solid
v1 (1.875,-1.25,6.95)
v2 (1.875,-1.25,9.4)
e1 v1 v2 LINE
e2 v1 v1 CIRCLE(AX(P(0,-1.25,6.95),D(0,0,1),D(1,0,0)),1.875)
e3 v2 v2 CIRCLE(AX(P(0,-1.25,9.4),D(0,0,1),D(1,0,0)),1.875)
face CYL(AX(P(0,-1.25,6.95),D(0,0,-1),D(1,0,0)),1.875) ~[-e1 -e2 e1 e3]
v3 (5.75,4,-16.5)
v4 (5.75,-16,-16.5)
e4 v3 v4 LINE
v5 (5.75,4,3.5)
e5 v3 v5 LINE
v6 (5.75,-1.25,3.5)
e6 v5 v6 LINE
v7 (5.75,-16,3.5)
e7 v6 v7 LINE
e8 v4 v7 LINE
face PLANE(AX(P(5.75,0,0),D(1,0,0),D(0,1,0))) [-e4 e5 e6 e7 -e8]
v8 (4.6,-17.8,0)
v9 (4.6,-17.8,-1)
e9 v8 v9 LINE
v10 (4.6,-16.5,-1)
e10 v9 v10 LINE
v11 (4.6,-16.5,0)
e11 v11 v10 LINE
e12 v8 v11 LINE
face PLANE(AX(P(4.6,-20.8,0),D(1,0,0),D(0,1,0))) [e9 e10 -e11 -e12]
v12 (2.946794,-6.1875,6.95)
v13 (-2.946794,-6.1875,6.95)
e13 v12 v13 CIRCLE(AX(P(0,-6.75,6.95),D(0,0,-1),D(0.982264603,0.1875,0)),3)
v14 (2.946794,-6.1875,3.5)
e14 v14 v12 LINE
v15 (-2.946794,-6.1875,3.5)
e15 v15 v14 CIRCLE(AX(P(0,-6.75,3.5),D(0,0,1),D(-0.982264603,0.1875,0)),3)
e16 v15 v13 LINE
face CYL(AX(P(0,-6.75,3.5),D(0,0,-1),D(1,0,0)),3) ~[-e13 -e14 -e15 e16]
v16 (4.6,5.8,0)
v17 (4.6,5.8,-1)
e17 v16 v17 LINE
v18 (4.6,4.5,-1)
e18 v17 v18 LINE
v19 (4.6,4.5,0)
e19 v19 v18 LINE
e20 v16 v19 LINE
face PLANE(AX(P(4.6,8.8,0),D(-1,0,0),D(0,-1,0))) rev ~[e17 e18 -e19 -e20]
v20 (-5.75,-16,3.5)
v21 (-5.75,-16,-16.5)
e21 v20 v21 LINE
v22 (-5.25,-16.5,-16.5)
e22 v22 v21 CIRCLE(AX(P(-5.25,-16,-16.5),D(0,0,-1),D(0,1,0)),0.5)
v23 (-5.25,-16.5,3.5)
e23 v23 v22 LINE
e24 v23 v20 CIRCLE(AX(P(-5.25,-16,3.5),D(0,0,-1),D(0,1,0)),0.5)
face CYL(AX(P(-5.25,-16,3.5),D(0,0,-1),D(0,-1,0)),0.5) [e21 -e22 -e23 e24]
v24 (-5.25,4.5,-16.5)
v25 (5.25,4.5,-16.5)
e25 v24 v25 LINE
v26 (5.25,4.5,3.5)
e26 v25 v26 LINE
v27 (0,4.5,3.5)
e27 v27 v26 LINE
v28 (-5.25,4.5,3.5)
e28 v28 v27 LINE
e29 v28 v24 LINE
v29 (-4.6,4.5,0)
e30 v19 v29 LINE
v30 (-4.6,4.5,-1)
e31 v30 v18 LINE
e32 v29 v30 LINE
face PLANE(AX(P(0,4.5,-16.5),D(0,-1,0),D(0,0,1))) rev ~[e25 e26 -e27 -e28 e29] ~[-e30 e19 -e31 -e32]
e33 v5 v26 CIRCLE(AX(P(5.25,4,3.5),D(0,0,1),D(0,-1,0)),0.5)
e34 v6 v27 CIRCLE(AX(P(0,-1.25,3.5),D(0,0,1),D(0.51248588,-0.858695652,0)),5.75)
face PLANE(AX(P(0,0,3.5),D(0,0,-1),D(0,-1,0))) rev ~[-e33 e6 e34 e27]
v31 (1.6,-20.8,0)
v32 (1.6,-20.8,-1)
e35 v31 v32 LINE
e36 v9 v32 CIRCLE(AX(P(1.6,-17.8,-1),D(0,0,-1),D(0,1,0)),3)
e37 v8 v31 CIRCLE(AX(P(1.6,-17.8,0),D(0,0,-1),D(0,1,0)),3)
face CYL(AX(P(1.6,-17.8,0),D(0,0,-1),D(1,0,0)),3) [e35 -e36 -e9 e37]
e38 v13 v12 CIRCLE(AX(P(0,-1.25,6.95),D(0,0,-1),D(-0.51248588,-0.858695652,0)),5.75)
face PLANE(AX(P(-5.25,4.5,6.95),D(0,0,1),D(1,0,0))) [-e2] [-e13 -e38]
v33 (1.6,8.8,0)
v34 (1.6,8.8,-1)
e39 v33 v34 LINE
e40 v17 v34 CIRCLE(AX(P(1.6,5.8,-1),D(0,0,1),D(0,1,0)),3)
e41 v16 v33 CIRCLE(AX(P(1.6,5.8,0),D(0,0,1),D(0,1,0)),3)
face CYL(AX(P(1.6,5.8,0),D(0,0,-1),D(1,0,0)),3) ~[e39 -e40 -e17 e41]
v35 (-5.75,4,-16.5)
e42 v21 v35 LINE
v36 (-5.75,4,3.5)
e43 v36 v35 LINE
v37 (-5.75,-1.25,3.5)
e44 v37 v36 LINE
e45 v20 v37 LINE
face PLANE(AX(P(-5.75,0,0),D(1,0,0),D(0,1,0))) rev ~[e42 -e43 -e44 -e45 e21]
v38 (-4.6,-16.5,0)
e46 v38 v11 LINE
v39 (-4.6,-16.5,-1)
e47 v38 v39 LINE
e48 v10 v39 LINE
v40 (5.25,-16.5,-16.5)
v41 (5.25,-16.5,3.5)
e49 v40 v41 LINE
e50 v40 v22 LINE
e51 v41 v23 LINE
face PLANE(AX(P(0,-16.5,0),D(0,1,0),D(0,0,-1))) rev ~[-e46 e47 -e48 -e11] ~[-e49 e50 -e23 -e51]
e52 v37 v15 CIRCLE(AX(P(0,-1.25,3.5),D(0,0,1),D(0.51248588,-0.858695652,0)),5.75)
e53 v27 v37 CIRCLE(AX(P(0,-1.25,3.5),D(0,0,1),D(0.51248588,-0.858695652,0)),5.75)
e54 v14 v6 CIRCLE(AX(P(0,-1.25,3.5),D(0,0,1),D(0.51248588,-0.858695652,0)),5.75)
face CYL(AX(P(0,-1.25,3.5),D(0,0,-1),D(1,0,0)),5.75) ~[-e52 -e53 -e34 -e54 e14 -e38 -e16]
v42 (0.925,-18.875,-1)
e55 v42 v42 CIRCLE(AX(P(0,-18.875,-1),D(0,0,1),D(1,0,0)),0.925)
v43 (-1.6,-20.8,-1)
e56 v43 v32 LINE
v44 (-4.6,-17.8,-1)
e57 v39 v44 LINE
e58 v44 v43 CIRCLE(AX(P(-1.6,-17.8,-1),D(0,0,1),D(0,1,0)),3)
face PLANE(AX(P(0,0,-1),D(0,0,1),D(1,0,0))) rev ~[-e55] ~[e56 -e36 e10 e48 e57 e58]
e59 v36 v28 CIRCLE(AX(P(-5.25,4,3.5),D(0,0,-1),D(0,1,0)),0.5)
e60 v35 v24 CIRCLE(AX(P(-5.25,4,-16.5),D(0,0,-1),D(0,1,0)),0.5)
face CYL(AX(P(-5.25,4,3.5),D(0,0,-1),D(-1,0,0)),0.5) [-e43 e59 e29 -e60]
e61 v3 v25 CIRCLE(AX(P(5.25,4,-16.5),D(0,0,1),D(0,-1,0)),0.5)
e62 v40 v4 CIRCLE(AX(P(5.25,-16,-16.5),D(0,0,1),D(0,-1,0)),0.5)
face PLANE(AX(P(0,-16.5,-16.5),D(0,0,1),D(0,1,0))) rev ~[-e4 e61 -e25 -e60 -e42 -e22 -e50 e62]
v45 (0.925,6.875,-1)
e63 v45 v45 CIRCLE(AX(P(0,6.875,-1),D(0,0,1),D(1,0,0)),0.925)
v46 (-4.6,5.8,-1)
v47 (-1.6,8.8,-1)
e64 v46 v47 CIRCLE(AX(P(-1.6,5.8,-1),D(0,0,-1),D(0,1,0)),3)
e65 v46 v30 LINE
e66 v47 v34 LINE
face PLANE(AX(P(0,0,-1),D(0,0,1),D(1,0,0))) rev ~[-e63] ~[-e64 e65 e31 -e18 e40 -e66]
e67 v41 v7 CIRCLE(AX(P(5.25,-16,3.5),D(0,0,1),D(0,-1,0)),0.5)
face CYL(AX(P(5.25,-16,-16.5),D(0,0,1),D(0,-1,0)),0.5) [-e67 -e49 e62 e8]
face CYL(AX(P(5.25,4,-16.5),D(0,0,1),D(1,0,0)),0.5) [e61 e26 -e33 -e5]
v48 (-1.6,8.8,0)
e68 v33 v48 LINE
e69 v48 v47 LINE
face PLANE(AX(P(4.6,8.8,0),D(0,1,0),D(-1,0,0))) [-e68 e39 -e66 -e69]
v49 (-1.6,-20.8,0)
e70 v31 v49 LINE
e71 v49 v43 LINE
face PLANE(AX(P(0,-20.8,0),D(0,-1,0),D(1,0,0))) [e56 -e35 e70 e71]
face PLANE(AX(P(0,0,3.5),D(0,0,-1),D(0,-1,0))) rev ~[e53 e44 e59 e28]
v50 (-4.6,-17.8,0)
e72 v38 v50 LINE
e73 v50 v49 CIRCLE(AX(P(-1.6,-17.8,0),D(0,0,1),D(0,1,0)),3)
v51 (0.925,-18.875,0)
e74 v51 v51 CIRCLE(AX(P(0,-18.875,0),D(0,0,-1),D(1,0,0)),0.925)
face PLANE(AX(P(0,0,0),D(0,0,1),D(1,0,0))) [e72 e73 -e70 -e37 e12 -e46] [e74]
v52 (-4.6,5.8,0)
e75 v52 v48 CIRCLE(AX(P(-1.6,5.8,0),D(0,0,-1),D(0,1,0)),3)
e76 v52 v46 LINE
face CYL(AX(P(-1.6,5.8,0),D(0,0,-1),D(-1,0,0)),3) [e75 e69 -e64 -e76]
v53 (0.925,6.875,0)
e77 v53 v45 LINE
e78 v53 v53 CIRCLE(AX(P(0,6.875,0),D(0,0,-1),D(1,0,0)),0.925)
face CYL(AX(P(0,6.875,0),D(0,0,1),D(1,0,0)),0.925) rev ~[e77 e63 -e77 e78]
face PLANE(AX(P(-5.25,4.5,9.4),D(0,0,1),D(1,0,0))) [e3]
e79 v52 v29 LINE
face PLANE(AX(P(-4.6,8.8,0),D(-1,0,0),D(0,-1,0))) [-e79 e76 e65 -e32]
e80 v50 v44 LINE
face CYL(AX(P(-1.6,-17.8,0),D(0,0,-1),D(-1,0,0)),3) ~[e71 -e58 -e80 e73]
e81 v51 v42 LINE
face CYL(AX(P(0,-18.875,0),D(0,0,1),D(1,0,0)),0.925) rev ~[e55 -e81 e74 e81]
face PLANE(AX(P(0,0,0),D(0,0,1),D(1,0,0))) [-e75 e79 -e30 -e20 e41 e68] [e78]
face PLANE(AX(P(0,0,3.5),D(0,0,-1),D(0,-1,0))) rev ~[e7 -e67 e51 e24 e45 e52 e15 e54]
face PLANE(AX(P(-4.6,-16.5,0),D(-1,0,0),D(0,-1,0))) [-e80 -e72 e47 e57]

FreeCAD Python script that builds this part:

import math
import FreeCAD as App
import Part
import Sketcher


def edges_at(feature, points):
    """Names of the edges that pass closest to the given points."""
    edges = feature.Shape.Edges
    near = lambda p: min(range(len(edges)), key=lambda i: edges[i].distToShape(Part.Vertex(*p))[0])
    return sorted({f"Edge{near(p) + 1}" for p in points})

doc = App.newDocument("Part")
params = doc.addObject("Spreadsheet::Sheet", "Params")
for row, (alias, value) in enumerate([
    ("sketch1_width", "21 mm"),
    ("sketch1_height", "20 mm"),
    ("pad1_length", "11.5 mm"),
    ("sketch2_diameter", "1.85 mm"),
    ("sketch2_width", "9.2 mm"),
    ("sketch2_height", "4.3 mm"),
    ("pad2_length", "1 mm"),
    ("fillet_radius", "3 mm"),
    ("fillet2_radius", "0.5 mm"),
    ("sketch3_radius", "3 mm"),
    ("sketch3_radius2", "5.75 mm"),
    ("pad3_length", "3.45 mm"),
    ("sketch4_diameter", "3.75 mm"),
    ("pad4_length", "2.45 mm"),
], start=1):
    params.set(f"A{row}", alias)
    params.set(f"B{row}", "=" + value)
    params.setAlias(f"B{row}", alias)

body = doc.addObject("PartDesign::Body", "Body")

# Sketch on YZ plane
sketch1 = body.newObject("Sketcher::SketchObject", "Sketch")
sketch1.AttachmentSupport = (doc.getObject("YZ_Plane"), [""])
sketch1.MapMode = "FlatFace"
sketch1.addGeometry([
    Part.LineSegment(App.Vector(-16.5, -16.5, 0), App.Vector(4.5, -16.5, 0)),
    Part.LineSegment(App.Vector(4.5, -16.5, 0), App.Vector(4.5, 3.5, 0)),
    Part.LineSegment(App.Vector(4.5, 3.5, 0), App.Vector(-16.5, 3.5, 0)),
    Part.LineSegment(App.Vector(-16.5, 3.5, 0), App.Vector(-16.5, -16.5, 0)),
], False)
sketch1.addConstraint([
    Sketcher.Constraint("Coincident", 0, 2, 1, 1),
    Sketcher.Constraint("Coincident", 1, 2, 2, 1),
    Sketcher.Constraint("Coincident", 2, 2, 3, 1),
    Sketcher.Constraint("Coincident", 3, 2, 0, 1),
    Sketcher.Constraint("Horizontal", 0),
    Sketcher.Constraint("Vertical", 1),
    Sketcher.Constraint("Horizontal", 2),
    Sketcher.Constraint("Vertical", 3),
    Sketcher.Constraint("DistanceX", 0, 1, 0, 2, 21.0),
    Sketcher.Constraint("DistanceY", 1, 1, 1, 2, 20.0),
    Sketcher.Constraint("DistanceX", -1, 1, 0, 2, 4.5),
    Sketcher.Constraint("DistanceY", -1, 1, 1, 2, 3.5),
])
sketch1.setExpression("Constraints[8]", "Params.sketch1_width")
sketch1.setExpression("Constraints[9]", "Params.sketch1_height")
pad1 = body.newObject("PartDesign::Pad", "Pad")
pad1.Profile = sketch1
pad1.setExpression("Length", "Params.pad1_length")
pad1.Midplane = True

# Sketch on XY plane
sketch2 = body.newObject("Sketcher::SketchObject", "Sketch001")
sketch2.AttachmentSupport = (doc.getObject("XY_Plane"), [""])
sketch2.MapMode = "FlatFace"
sketch2.addGeometry([
    Part.LineSegment(App.Vector(4.6, 4.5, 0), App.Vector(4.6, 8.8, 0)),  # 0
    Part.LineSegment(App.Vector(4.6, 8.8, 0), App.Vector(-4.6, 8.8, 0)),  # 1
    Part.LineSegment(App.Vector(-4.6, 8.8, 0), App.Vector(-4.6, 4.5, 0)),  # 2
    Part.LineSegment(App.Vector(-4.6, 4.5, 0), App.Vector(4.6, 4.5, 0)),  # 3
    Part.Circle(App.Vector(0, 6.875, 0), App.Vector(0, 0, 1), 0.925),  # 4
    Part.LineSegment(App.Vector(4.6, -20.8, 0), App.Vector(4.6, -16.5, 0)),  # 5
    Part.LineSegment(App.Vector(4.6, -16.5, 0), App.Vector(-4.6, -16.5, 0)),  # 6
    Part.LineSegment(App.Vector(-4.6, -16.5, 0), App.Vector(-4.6, -20.8, 0)),  # 7
    Part.LineSegment(App.Vector(-4.6, -20.8, 0), App.Vector(4.6, -20.8, 0)),  # 8
    Part.Circle(App.Vector(0, -18.875, 0), App.Vector(0, 0, 1), 0.925),  # 9
], False)
sketch2.addConstraint([
    Sketcher.Constraint("Coincident", 0, 2, 1, 1),
    Sketcher.Constraint("Coincident", 1, 2, 2, 1),
    Sketcher.Constraint("Coincident", 2, 2, 3, 1),
    Sketcher.Constraint("Coincident", 3, 2, 0, 1),
    Sketcher.Constraint("Coincident", 5, 2, 6, 1),
    Sketcher.Constraint("Coincident", 6, 2, 7, 1),
    Sketcher.Constraint("Coincident", 7, 2, 8, 1),
    Sketcher.Constraint("Coincident", 8, 2, 5, 1),
    Sketcher.Constraint("Vertical", 0),
    Sketcher.Constraint("Horizontal", 1),
    Sketcher.Constraint("Vertical", 2),
    Sketcher.Constraint("Horizontal", 3),
    Sketcher.Constraint("Vertical", 5),
    Sketcher.Constraint("Horizontal", 6),
    Sketcher.Constraint("Vertical", 7),
    Sketcher.Constraint("Horizontal", 8),
    Sketcher.Constraint("Equal", 4, 9),
    Sketcher.Constraint("PointOnObject", 4, 3, -2),
    Sketcher.Constraint("PointOnObject", 9, 3, -2),
    Sketcher.Constraint("Vertical", 3, 2, 5, 2),
    Sketcher.Constraint("Vertical", 2, 2, 6, 2),
    Sketcher.Constraint("Equal", 2, 5),
    Sketcher.Constraint("Diameter", 4, 1.85),
    Sketcher.Constraint("DistanceX", 1, 2, 1, 1, 9.2),
    Sketcher.Constraint("DistanceY", 0, 1, 0, 2, 4.3),
    Sketcher.Constraint("DistanceY", 5, 2, 3, 2, 21.0),
    Sketcher.Constraint("DistanceX", -1, 1, 0, 2, 4.6),
    Sketcher.Constraint("DistanceY", -1, 1, 0, 2, 8.8),
    Sketcher.Constraint("DistanceY", 9, 3, 4, 3, 25.75),
    Sketcher.Constraint("DistanceY", -1, 1, 4, 3, 6.875),
])
sketch2.setExpression("Constraints[22]", "Params.sketch2_diameter")
sketch2.setExpression("Constraints[23]", "Params.sketch2_width")
sketch2.setExpression("Constraints[24]", "Params.sketch2_height")
pad2 = body.newObject("PartDesign::Pad", "Pad001")
pad2.Profile = sketch2
pad2.setExpression("Length", "Params.pad2_length")
pad2.Reversed = True
doc.recompute()

fillet = body.newObject("PartDesign::Fillet", "Fillet")
fillet.Base = (pad2, edges_at(pad2, [
    (4.6, 8.8, -0.5),
    (-4.6, 8.8, -0.5),
    (-4.6, -20.8, -0.5),
    (4.6, -20.8, -0.5),
]))
fillet.setExpression("Radius", "Params.fillet_radius")
doc.recompute()

fillet2 = body.newObject("PartDesign::Fillet", "Fillet001")
fillet2.Base = (fillet, edges_at(fillet, [
    (5.75, -16.5, -6.5),
    (-5.75, -16.5, -6.5),
    (-5.75, 4.5, -6.5),
    (5.75, 4.5, -6.5),
]))
fillet2.setExpression("Radius", "Params.fillet2_radius")

# Sketch on XY plane
sketch3 = body.newObject("Sketcher::SketchObject", "Sketch002")
sketch3.AttachmentSupport = (doc.getObject("XY_Plane"), [""])
sketch3.MapMode = "FlatFace"
sketch3.AttachmentOffset = App.Placement(App.Vector(0, 0, 3.5), App.Rotation())
sketch3.addGeometry([
    Part.ArcOfCircle(Part.Circle(App.Vector(0, -6.75, 0), App.Vector(0, 0, 1), 3), math.radians(169.193077), math.radians(370.806923)),
    Part.ArcOfCircle(Part.Circle(App.Vector(0, -1.25, 0), App.Vector(0, 0, 1), 5.75), math.radians(-59.170445), math.radians(239.170445)),
], False)
sketch3.addConstraint([
    Sketcher.Constraint("Coincident", 0, 1, 1, 2),
    Sketcher.Constraint("Coincident", 1, 1, 0, 2),
    Sketcher.Constraint("Symmetric", 0, 1, 1, 1, -2),
    Sketcher.Constraint("Radius", 0, 3.0),
    Sketcher.Constraint("DistanceY", 0, 3, 1, 3, 5.5),
    Sketcher.Constraint("Radius", 1, 5.75),
    Sketcher.Constraint("DistanceY", 0, 3, -1, 1, 6.75),
])
sketch3.setExpression("Constraints[3]", "Params.sketch3_radius")
sketch3.setExpression("Constraints[5]", "Params.sketch3_radius2")
pad3 = body.newObject("PartDesign::Pad", "Pad002")
pad3.Profile = sketch3
pad3.setExpression("Length", "Params.pad3_length")

# Sketch on XY plane
sketch4 = body.newObject("Sketcher::SketchObject", "Sketch003")
sketch4.AttachmentSupport = (doc.getObject("XY_Plane"), [""])
sketch4.MapMode = "FlatFace"
sketch4.AttachmentOffset = App.Placement(App.Vector(0, 0, 6.95), App.Rotation())
sketch4.addGeometry(Part.Circle(App.Vector(0, -1.25, 0), App.Vector(0, 0, 1), 1.875), False)
sketch4.addConstraint([
    Sketcher.Constraint("PointOnObject", 0, 3, -2),
    Sketcher.Constraint("Diameter", 0, 3.75),
    Sketcher.Constraint("DistanceY", 0, 3, -1, 1, 1.25),
])
sketch4.setExpression("Constraints[1]", "Params.sketch4_diameter")
pad4 = body.newObject("PartDesign::Pad", "Pad003")
pad4.Profile = sketch4
pad4.setExpression("Length", "Params.pad4_length")

doc.recompute()
